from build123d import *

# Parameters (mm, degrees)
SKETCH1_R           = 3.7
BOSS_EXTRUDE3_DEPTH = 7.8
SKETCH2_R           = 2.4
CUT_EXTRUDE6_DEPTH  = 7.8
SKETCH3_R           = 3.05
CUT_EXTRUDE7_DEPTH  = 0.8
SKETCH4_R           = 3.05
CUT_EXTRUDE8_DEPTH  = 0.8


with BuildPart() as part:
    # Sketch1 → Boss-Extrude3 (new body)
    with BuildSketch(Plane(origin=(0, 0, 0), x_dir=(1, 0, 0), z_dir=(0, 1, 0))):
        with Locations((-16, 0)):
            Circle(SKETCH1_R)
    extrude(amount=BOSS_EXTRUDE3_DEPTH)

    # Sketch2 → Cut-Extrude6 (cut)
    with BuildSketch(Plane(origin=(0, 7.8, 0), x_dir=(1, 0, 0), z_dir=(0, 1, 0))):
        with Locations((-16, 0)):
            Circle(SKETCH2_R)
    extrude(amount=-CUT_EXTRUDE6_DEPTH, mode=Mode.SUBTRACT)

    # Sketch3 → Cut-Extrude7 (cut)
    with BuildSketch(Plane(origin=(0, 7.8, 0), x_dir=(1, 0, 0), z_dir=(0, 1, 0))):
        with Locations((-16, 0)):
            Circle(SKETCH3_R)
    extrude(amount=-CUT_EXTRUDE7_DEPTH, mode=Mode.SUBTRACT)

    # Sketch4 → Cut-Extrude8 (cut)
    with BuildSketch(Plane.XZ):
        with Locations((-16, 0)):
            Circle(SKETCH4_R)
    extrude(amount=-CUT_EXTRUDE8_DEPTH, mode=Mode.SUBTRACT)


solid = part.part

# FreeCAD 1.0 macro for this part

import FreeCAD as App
import Part
import Sketcher

V = App.Vector
Q = App.Units.Quantity

doc = App.newDocument("Part")
body = doc.addObject("PartDesign::Body", "Body")

# Sketch on XZ plane
sketch1 = body.newObject("Sketcher::SketchObject", "Sketch")
sketch1.AttachmentSupport = (doc.getObject("XZ_Plane"), [""])
sketch1.MapMode = "FlatFace"
sketch1.addGeometry(Part.Circle(V(-16, 0, 0), V(0, 0, 1), 3.7), False)
sketch1.addConstraint([
    Sketcher.Constraint("PointOnObject", 0, 3, -1),
    Sketcher.Constraint("Diameter", 0, Q("7.4 mm")),
    Sketcher.Constraint("DistanceX", 0, 3, -1, 1, Q("16 mm")),
])
pad1 = body.newObject("PartDesign::Pad", "Pad")
pad1.Profile = sketch1
pad1.Length = 7.8
pad1.Reversed = True

# Sketch on XZ plane
sketch2 = body.newObject("Sketcher::SketchObject", "Sketch001")
sketch2.AttachmentSupport = (doc.getObject("XZ_Plane"), [""])
sketch2.MapMode = "FlatFace"
sketch2.AttachmentOffset = App.Placement(V(0, 0, -7.8), App.Rotation())
sketch2.addGeometry(Part.Circle(V(-16, 0, 0), V(0, 0, 1), 2.4), False)
sketch2.addConstraint([
    Sketcher.Constraint("PointOnObject", 0, 3, -1),
    Sketcher.Constraint("Diameter", 0, Q("4.8 mm")),
    Sketcher.Constraint("DistanceX", 0, 3, -1, 1, Q("16 mm")),
])
pocket1 = body.newObject("PartDesign::Pocket", "Pocket")
pocket1.Profile = sketch2
pocket1.Length = 7.8
pocket1.Reversed = True

# Sketch on XZ plane
sketch3 = body.newObject("Sketcher::SketchObject", "Sketch002")
sketch3.AttachmentSupport = (doc.getObject("XZ_Plane"), [""])
sketch3.MapMode = "FlatFace"
sketch3.AttachmentOffset = App.Placement(V(0, 0, -7.8), App.Rotation())
sketch3.addGeometry(Part.Circle(V(-16, 0, 0), V(0, 0, 1), 3), False)
sketch3.addConstraint([
    Sketcher.Constraint("PointOnObject", 0, 3, -1),
    Sketcher.Constraint("Diameter", 0, Q("6.1 mm")),
    Sketcher.Constraint("DistanceX", 0, 3, -1, 1, Q("16 mm")),
])
pocket2 = body.newObject("PartDesign::Pocket", "Pocket001")
pocket2.Profile = sketch3
pocket2.Length = 0.8
pocket2.Reversed = True

# Sketch on XZ plane
sketch4 = body.newObject("Sketcher::SketchObject", "Sketch003")
sketch4.AttachmentSupport = (doc.getObject("XZ_Plane"), [""])
sketch4.MapMode = "FlatFace"
sketch4.addGeometry(Part.Circle(V(-16, 0, 0), V(0, 0, 1), 3), False)
sketch4.addConstraint([
    Sketcher.Constraint("PointOnObject", 0, 3, -1),
    Sketcher.Constraint("Diameter", 0, Q("6.1 mm")),
    Sketcher.Constraint("DistanceX", 0, 3, -1, 1, Q("16 mm")),
])
pocket3 = body.newObject("PartDesign::Pocket", "Pocket002")
pocket3.Profile = sketch4
pocket3.Length = 0.8

doc.recompute()
